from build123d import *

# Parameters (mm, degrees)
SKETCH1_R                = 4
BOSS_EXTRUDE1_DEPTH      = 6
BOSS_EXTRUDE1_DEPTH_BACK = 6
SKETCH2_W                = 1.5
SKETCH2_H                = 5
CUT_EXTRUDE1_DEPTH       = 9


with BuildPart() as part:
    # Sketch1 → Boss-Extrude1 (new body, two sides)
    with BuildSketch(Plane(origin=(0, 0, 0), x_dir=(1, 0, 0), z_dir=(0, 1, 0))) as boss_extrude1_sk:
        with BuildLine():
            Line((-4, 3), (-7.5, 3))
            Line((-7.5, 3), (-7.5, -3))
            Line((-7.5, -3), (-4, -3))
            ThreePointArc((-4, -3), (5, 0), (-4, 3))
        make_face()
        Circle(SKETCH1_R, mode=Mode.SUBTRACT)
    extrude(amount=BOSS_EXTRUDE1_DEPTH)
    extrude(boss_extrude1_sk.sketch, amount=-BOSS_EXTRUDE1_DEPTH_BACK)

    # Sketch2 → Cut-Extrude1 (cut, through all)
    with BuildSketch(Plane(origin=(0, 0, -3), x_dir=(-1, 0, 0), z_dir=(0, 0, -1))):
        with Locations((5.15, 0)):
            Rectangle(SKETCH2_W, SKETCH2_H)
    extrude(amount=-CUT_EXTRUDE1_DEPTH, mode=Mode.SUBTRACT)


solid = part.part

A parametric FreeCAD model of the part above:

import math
import FreeCAD as App
import Part
import Sketcher

V = App.Vector

doc = App.newDocument("Part")
body = doc.addObject("PartDesign::Body", "Body")

sketch1 = body.newObject("Sketcher::SketchObject", "Sketch")
sketch1.AttachmentSupport = (doc.getObject("XZ_Plane"), [""])
sketch1.MapMode = "FlatFace"
sketch1.addGeometry(Part.LineSegment(V(-4, -3, 0), V(-7.5, -3, 0)), False)
sketch1.addGeometry(Part.LineSegment(V(-7.5, -3, 0), V(-7.5, 3, 0)), False)
sketch1.addGeometry(Part.LineSegment(V(-7.5, 3, 0), V(-4, 3, 0)), False)
sketch1.addGeometry(Part.ArcOfCircle(Part.Circle(V(0, 0, 0), V(0, 0, 1), 5), math.radians(-143), math.radians(143)), False)
sketch1.addGeometry(Part.Circle(V(0, 0, 0), V(0, 0, 1), 4), False)
sketch1.addConstraint(Sketcher.Constraint("Coincident", 0, 2, 1, 1))
sketch1.addConstraint(Sketcher.Constraint("Coincident", 1, 2, 2, 1))
sketch1.addConstraint(Sketcher.Constraint("Coincident", 2, 2, 3, 2))
sketch1.addConstraint(Sketcher.Constraint("Coincident", 3, 1, 0, 1))
sketch1.addConstraint(Sketcher.Constraint("Horizontal", 0))
sketch1.addConstraint(Sketcher.Constraint("Vertical", 1))
sketch1.addConstraint(Sketcher.Constraint("Horizontal", 2))
sketch1.addConstraint(Sketcher.Constraint("Coincident", 3, 3, -1, 1))
sketch1.addConstraint(Sketcher.Constraint("Coincident", 4, 3, -1, 1))
sketch1.addConstraint(Sketcher.Constraint("Vertical", 2, 2, 3, 1))
sketch1.addConstraint(Sketcher.Constraint("Diameter", 4, 8.0))
sketch1.addConstraint(Sketcher.Constraint("Radius", 3, 5.0))
sketch1.addConstraint(Sketcher.Constraint("DistanceY", 1, 1, 1, 2, 6.0))
sketch1.addConstraint(Sketcher.Constraint("DistanceX", 0, 2, 0, 1, 3.5))
pad1 = body.newObject("PartDesign::Pad", "Pad")
pad1.Profile = sketch1
pad1.Type = "TwoLengths"
pad1.Length = 6
pad1.Length2 = 6
pad1.Reversed = True

sketch2 = body.newObject("Sketcher::SketchObject", "Sketch001")
sketch2.AttachmentSupport = (doc.getObject("XY_Plane"), [""])
sketch2.MapMode = "FlatFace"
sketch2.AttachmentOffset = App.Placement(V(0, 0, -3), App.Rotation())
sketch2.addGeometry(Part.LineSegment(V(-4.4, 2.5, 0), V(-4.4, -2.5, 0)), False)
sketch2.addGeometry(Part.LineSegment(V(-4.4, -2.5, 0), V(-5.9, -2.5, 0)), False)
sketch2.addGeometry(Part.LineSegment(V(-5.9, -2.5, 0), V(-5.9, 2.5, 0)), False)
sketch2.addGeometry(Part.LineSegment(V(-5.9, 2.5, 0), V(-4.4, 2.5, 0)), False)
sketch2.addConstraint(Sketcher.Constraint("Coincident", 0, 2, 1, 1))
sketch2.addConstraint(Sketcher.Constraint("Coincident", 1, 2, 2, 1))
sketch2.addConstraint(Sketcher.Constraint("Coincident", 2, 2, 3, 1))
sketch2.addConstraint(Sketcher.Constraint("Coincident", 3, 2, 0, 1))
sketch2.addConstraint(Sketcher.Constraint("Vertical", 0))
sketch2.addConstraint(Sketcher.Constraint("Horizontal", 1))
sketch2.addConstraint(Sketcher.Constraint("Vertical", 2))
sketch2.addConstraint(Sketcher.Constraint("Horizontal", 3))
sketch2.addConstraint(Sketcher.Constraint("DistanceY", 0, 2, 0, 1, 5.0))
sketch2.addConstraint(Sketcher.Constraint("DistanceX", 1, 2, 1, 1, 1.5))
sketch2.addConstraint(Sketcher.Constraint("DistanceX", 0, 2, -1, 1, 4.4))
sketch2.addConstraint(Sketcher.Constraint("DistanceY", 0, 2, -1, 1, 2.5))
pocket1 = body.newObject("PartDesign::Pocket", "Pocket")
pocket1.Profile = sketch2
pocket1.Type = "ThroughAll"
pocket1.Reversed = True

doc.recompute()
